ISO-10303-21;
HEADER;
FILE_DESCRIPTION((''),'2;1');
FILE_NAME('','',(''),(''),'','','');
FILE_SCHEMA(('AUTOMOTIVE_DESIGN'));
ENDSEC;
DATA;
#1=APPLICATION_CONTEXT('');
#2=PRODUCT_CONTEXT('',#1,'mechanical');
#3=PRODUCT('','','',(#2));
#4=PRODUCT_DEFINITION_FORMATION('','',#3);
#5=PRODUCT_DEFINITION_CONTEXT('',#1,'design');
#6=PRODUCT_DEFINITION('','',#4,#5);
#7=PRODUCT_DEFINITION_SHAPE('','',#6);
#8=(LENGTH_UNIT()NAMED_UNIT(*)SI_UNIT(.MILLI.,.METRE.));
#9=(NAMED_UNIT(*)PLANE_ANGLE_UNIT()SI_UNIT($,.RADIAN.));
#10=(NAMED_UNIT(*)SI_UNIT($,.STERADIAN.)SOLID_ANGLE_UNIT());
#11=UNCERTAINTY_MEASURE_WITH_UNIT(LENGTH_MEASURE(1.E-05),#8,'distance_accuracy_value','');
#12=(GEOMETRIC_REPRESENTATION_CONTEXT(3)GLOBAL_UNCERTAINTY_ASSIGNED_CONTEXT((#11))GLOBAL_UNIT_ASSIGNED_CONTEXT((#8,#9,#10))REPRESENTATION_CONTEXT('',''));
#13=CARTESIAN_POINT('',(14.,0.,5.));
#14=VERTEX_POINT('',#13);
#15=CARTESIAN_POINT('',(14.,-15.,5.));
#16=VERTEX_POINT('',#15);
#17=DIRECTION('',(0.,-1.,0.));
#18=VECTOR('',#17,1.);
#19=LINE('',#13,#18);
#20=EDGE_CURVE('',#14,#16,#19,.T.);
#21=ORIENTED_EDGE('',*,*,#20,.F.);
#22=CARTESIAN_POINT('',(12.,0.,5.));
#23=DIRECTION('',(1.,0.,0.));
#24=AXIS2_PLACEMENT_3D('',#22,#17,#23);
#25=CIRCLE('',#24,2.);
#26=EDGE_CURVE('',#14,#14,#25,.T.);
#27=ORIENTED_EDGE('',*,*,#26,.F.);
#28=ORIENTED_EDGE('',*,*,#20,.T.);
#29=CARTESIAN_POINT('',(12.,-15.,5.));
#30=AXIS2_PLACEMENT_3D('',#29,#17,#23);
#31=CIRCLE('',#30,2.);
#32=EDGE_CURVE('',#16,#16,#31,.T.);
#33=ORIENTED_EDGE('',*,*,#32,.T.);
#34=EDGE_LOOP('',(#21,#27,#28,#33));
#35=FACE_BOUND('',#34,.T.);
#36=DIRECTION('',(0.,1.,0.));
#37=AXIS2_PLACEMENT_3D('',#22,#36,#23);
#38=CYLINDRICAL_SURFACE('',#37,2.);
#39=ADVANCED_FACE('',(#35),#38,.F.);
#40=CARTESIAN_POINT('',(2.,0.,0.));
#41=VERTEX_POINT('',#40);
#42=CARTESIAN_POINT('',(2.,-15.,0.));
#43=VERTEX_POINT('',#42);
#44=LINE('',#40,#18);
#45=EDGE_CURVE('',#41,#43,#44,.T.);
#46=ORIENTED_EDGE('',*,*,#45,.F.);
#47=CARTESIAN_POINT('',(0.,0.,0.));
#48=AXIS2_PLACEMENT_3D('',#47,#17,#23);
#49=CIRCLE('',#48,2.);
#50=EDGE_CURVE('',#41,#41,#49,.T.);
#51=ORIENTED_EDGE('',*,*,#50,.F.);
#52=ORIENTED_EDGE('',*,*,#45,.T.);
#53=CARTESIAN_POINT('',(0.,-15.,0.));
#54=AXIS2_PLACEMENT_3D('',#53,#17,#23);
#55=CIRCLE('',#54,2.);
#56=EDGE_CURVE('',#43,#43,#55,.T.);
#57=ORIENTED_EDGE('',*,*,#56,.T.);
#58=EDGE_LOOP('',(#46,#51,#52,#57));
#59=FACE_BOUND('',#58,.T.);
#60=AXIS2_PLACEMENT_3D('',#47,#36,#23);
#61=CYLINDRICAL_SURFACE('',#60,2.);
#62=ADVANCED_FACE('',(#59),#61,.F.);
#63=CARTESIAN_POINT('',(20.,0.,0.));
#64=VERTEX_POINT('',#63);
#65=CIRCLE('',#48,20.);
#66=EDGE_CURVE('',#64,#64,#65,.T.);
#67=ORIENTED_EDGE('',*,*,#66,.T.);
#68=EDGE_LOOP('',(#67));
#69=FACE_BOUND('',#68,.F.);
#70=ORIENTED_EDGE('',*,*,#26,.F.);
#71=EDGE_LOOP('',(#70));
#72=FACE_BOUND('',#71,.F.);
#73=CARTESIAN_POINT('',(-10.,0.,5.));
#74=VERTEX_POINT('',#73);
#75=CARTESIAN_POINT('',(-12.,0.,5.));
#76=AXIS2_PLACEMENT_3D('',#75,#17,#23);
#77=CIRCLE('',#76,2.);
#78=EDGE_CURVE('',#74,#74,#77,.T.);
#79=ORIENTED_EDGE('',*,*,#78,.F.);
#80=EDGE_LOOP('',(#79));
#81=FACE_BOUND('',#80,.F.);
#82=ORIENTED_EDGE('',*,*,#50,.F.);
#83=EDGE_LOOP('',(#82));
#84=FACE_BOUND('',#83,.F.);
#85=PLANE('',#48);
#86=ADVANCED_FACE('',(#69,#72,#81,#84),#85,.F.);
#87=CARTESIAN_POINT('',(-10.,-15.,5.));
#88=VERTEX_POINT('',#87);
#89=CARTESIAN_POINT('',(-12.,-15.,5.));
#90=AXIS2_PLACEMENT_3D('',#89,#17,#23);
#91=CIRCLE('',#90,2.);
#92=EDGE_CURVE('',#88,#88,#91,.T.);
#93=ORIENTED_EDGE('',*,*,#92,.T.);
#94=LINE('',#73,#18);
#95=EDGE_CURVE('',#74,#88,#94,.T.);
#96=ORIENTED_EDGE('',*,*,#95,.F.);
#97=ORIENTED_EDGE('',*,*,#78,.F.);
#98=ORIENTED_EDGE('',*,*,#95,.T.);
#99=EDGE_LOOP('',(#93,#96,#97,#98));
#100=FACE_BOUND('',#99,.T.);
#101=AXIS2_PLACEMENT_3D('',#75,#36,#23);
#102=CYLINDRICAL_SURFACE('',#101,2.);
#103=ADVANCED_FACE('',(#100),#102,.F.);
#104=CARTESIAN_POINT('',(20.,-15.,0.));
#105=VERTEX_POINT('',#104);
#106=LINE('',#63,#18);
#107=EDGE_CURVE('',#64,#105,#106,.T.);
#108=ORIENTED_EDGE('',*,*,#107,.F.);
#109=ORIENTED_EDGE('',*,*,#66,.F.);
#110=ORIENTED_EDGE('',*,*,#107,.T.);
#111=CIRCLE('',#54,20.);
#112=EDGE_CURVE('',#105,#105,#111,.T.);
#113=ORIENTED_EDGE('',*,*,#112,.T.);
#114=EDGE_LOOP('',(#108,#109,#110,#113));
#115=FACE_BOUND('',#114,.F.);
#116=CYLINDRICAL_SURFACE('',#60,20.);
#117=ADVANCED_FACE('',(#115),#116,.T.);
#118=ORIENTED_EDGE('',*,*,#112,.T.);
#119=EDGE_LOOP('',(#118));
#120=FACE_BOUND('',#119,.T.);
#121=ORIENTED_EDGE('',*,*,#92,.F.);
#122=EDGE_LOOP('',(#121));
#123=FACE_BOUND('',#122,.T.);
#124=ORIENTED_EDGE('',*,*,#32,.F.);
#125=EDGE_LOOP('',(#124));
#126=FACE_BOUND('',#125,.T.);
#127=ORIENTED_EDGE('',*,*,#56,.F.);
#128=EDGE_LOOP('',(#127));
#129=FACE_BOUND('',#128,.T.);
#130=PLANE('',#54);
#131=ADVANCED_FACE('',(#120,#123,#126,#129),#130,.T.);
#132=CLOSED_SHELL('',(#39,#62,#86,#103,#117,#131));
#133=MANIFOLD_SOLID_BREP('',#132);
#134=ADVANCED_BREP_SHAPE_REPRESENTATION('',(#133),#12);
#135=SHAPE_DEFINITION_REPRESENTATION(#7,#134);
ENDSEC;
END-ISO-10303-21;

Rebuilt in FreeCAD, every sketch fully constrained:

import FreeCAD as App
import Part
import Sketcher

V = App.Vector
Q = App.Units.Quantity

doc = App.newDocument("Part")
params = doc.addObject("Spreadsheet::Sheet", "Params")
for row, (alias, value) in enumerate([
    ("sketch1_diameter", "40 mm"),
    ("sketch1_diameter2", "4 mm"),
    ("pad1_length", "15 mm"),
], start=1):
    params.set(f"A{row}", alias)
    params.set(f"B{row}", "=" + value)
    params.setAlias(f"B{row}", alias)

body = doc.addObject("PartDesign::Body", "Body")

sketch1 = body.newObject("Sketcher::SketchObject", "Sketch")
sketch1.AttachmentSupport = (doc.getObject("XZ_Plane"), [""])
sketch1.MapMode = "FlatFace"
sketch1.addGeometry(Part.Circle(V(0, 0, 0), V(0, 0, 1), 20), False)
sketch1.addGeometry(Part.Circle(V(0, 0, 0), V(0, 0, 1), 2), False)
sketch1.addGeometry(Part.Circle(V(-12, 5, 0), V(0, 0, 1), 2), False)
sketch1.addGeometry(Part.Circle(V(12, 5, 0), V(0, 0, 1), 2), False)
sketch1.addConstraint(Sketcher.Constraint("Coincident", 0, 3, -1, 1))
sketch1.addConstraint(Sketcher.Constraint("Coincident", 1, 3, -1, 1))
sketch1.addConstraint(Sketcher.Constraint("Equal", 1, 2))
sketch1.addConstraint(Sketcher.Constraint("Equal", 2, 3))
sketch1.addConstraint(Sketcher.Constraint("Symmetric", 2, 3, 3, 3, -2))
sketch1.addConstraint(Sketcher.Constraint("Diameter", 0, Q("40 mm")))
sketch1.addConstraint(Sketcher.Constraint("Diameter", 1, Q("4 mm")))
sketch1.addConstraint(Sketcher.Constraint("DistanceX", 2, 3, -1, 1, Q("12 mm")))
sketch1.addConstraint(Sketcher.Constraint("DistanceY", -1, 1, 2, 3, Q("5 mm")))
sketch1.setExpression("Constraints[5]", "Params.sketch1_diameter")
sketch1.setExpression("Constraints[6]", "Params.sketch1_diameter2")
pad1 = body.newObject("PartDesign::Pad", "Pad")
pad1.Profile = sketch1
pad1.setExpression("Length", "Params.pad1_length")

doc.recompute()
